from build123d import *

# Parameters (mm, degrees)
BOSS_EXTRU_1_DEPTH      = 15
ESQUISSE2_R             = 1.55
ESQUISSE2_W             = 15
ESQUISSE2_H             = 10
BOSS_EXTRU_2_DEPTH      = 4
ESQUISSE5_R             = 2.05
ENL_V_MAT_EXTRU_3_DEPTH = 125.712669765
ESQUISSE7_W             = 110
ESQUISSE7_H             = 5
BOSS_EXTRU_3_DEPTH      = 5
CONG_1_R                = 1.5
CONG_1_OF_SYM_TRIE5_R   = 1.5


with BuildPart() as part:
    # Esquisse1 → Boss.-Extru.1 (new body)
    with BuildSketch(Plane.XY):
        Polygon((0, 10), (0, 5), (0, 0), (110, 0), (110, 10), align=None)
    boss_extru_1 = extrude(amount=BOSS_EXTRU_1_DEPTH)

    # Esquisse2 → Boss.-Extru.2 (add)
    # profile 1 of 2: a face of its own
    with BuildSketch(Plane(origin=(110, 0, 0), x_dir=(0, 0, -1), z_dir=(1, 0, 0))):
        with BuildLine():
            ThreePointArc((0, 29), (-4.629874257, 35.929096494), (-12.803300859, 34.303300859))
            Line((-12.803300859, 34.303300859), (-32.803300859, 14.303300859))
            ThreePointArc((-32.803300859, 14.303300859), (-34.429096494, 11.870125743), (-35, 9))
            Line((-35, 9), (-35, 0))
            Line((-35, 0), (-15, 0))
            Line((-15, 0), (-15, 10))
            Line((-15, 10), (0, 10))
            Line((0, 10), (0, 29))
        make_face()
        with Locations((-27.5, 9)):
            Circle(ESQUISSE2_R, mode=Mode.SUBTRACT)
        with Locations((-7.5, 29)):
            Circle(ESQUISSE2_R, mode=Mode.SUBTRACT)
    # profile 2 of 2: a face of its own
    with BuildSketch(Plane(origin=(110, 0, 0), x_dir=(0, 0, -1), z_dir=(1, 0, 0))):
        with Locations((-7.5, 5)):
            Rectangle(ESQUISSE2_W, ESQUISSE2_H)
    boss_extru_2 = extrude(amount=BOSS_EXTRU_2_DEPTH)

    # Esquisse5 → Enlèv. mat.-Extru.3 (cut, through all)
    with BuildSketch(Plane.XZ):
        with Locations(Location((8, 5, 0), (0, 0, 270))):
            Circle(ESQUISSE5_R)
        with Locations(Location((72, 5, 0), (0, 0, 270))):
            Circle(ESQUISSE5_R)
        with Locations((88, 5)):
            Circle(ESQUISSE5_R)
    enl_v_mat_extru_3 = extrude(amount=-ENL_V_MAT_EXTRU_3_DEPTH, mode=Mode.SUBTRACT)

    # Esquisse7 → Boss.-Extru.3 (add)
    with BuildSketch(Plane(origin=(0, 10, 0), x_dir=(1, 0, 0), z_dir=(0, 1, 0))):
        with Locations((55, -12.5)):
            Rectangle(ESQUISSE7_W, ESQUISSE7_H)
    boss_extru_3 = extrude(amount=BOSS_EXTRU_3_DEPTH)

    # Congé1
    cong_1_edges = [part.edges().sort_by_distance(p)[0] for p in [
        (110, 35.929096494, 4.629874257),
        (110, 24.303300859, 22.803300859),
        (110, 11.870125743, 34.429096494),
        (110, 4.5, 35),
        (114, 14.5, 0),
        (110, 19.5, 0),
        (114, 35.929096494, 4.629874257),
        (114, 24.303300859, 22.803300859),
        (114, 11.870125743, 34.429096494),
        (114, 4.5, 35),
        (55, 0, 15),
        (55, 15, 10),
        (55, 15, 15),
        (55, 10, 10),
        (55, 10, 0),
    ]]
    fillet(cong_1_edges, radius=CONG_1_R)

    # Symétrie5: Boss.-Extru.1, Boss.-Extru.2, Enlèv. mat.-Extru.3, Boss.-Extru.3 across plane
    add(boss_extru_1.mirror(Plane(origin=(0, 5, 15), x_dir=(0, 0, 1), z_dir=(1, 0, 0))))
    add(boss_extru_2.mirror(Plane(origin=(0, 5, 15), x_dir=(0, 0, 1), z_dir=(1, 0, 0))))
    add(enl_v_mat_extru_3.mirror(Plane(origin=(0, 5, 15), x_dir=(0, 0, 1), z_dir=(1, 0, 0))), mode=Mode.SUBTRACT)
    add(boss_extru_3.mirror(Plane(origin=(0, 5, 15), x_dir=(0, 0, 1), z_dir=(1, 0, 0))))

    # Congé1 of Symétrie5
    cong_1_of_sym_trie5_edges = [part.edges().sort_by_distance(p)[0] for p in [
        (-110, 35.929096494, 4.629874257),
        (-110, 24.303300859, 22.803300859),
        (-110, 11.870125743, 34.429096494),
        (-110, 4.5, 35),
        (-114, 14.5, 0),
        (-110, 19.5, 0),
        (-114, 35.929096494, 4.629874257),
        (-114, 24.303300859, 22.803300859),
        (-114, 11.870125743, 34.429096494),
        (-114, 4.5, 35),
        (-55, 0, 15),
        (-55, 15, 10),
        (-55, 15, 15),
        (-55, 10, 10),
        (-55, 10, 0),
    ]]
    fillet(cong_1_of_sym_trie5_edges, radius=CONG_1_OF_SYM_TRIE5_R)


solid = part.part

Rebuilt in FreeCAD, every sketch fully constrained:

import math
import FreeCAD as App
import Part
import Sketcher

V = App.Vector


def edges_at(feature, points):
    """Names of the edges that pass closest to the given points."""
    edges = feature.Shape.Edges
    near = lambda p: min(range(len(edges)), key=lambda i: edges[i].distToShape(Part.Vertex(*p))[0])
    return sorted({f"Edge{near(p) + 1}" for p in points})

doc = App.newDocument("Part")
body = doc.addObject("PartDesign::Body", "Body")

# Sketch on XY plane
sketch1 = body.newObject("Sketcher::SketchObject", "Sketch")
sketch1.AttachmentSupport = (doc.getObject("XY_Plane"), [""])
sketch1.MapMode = "FlatFace"
sketch1.addGeometry(Part.LineSegment(V(0, 10, 0), V(0, 0, 0)), False)
sketch1.addGeometry(Part.LineSegment(V(0, 0, 0), V(110, 0, 0)), False)
sketch1.addGeometry(Part.LineSegment(V(110, 0, 0), V(110, 10, 0)), False)
sketch1.addGeometry(Part.LineSegment(V(110, 10, 0), V(0, 10, 0)), False)
sketch1.addConstraint(Sketcher.Constraint("Coincident", 0, 2, 1, 1))
sketch1.addConstraint(Sketcher.Constraint("Coincident", 1, 2, 2, 1))
sketch1.addConstraint(Sketcher.Constraint("Coincident", 2, 2, 3, 1))
sketch1.addConstraint(Sketcher.Constraint("Coincident", 3, 2, 0, 1))
sketch1.addConstraint(Sketcher.Constraint("Vertical", 0))
sketch1.addConstraint(Sketcher.Constraint("Horizontal", 1))
sketch1.addConstraint(Sketcher.Constraint("Vertical", 2))
sketch1.addConstraint(Sketcher.Constraint("Horizontal", 3))
sketch1.addConstraint(Sketcher.Constraint("Coincident", 0, 2, -1, 1))
sketch1.addConstraint(Sketcher.Constraint("DistanceX", 1, 1, 1, 2, 110.0))
sketch1.addConstraint(Sketcher.Constraint("DistanceY", 0, 2, 0, 1, 10.0))
pad1 = body.newObject("PartDesign::Pad", "Pad")
pad1.Profile = sketch1
pad1.Length = 15

# Sketch on YZ plane
sketch2 = body.newObject("Sketcher::SketchObject", "Sketch001")
sketch2.AttachmentSupport = (doc.getObject("YZ_Plane"), [""])
sketch2.MapMode = "FlatFace"
sketch2.AttachmentOffset = App.Placement(V(0, 0, 110), App.Rotation())
sketch2.addGeometry(Part.ArcOfCircle(Part.Circle(V(29, 7.5, 0), V(0, 0, 1), 7.5), math.radians(-90), math.radians(45)), False)
sketch2.addGeometry(Part.LineSegment(V(34.3, 12.8, 0), V(14.3, 32.8, 0)), False)
sketch2.addGeometry(Part.ArcOfCircle(Part.Circle(V(9, 27.5, 0), V(0, 0, 1), 7.5), math.radians(45), math.radians(90)), False)
sketch2.addGeometry(Part.LineSegment(V(9, 35, 0), V(0, 35, 0)), False)
sketch2.addGeometry(Part.LineSegment(V(0, 35, 0), V(0, 0, 0)), False)
sketch2.addGeometry(Part.LineSegment(V(0, 0, 0), V(29, 0, 0)), False)
sketch2.addGeometry(Part.Circle(V(9, 27.5, 0), V(0, 0, 1), 1.6), False)
sketch2.addGeometry(Part.Circle(V(29, 7.5, 0), V(0, 0, 1), 1.6), False)
sketch2.addConstraint(Sketcher.Constraint("Tangent", 0, 2, 1, 1))
sketch2.addConstraint(Sketcher.Constraint("Tangent", 1, 2, 2, 1))
sketch2.addConstraint(Sketcher.Constraint("Tangent", 2, 2, 3, 1))
sketch2.addConstraint(Sketcher.Constraint("Coincident", 3, 2, 4, 1))
sketch2.addConstraint(Sketcher.Constraint("Coincident", 4, 2, 5, 1))
sketch2.addConstraint(Sketcher.Constraint("Tangent", 5, 2, 0, 1))
sketch2.addConstraint(Sketcher.Constraint("Horizontal", 3))
sketch2.addConstraint(Sketcher.Constraint("Vertical", 4))
sketch2.addConstraint(Sketcher.Constraint("Horizontal", 5))
sketch2.addConstraint(Sketcher.Constraint("Coincident", 4, 2, -1, 1))
sketch2.addConstraint(Sketcher.Constraint("Coincident", 6, 3, 2, 3))
sketch2.addConstraint(Sketcher.Constraint("Coincident", 7, 3, 0, 3))
sketch2.addConstraint(Sketcher.Constraint("Equal", 0, 2))
sketch2.addConstraint(Sketcher.Constraint("Equal", 6, 7))
sketch2.addConstraint(Sketcher.Constraint("Diameter", 6, 3.1))
sketch2.addConstraint(Sketcher.Constraint("Radius", 0, 7.5))
sketch2.addConstraint(Sketcher.Constraint("DistanceX", 3, 2, 3, 1, 9.0))
sketch2.addConstraint(Sketcher.Constraint("DistanceX", 5, 1, 5, 2, 29.0))
sketch2.addConstraint(Sketcher.Constraint("DistanceY", 4, 2, 4, 1, 35.0))
pad2 = body.newObject("PartDesign::Pad", "Pad001")
pad2.Profile = sketch2
pad2.Length = 4

# Sketch on XZ plane
sketch3 = body.newObject("Sketcher::SketchObject", "Sketch002")
sketch3.AttachmentSupport = (doc.getObject("XZ_Plane"), [""])
sketch3.MapMode = "FlatFace"
sketch3.addGeometry(Part.Circle(V(8, 5, 0), V(0, 0, 1), 2), False)
sketch3.addGeometry(Part.Circle(V(72, 5, 0), V(0, 0, 1), 2), False)
sketch3.addGeometry(Part.Circle(V(88, 5, 0), V(0, 0, 1), 2), False)
sketch3.addConstraint(Sketcher.Constraint("Equal", 0, 1))
sketch3.addConstraint(Sketcher.Constraint("Equal", 1, 2))
sketch3.addConstraint(Sketcher.Constraint("Horizontal", 0, 3, 1, 3))
sketch3.addConstraint(Sketcher.Constraint("Horizontal", 1, 3, 2, 3))
sketch3.addConstraint(Sketcher.Constraint("Diameter", 0, 4.1))
sketch3.addConstraint(Sketcher.Constraint("DistanceX", -1, 1, 0, 3, 8.0))
sketch3.addConstraint(Sketcher.Constraint("DistanceY", -1, 1, 0, 3, 5.0))
sketch3.addConstraint(Sketcher.Constraint("DistanceX", -1, 1, 1, 3, 72.0))
sketch3.addConstraint(Sketcher.Constraint("DistanceX", -1, 1, 2, 3, 88.0))
pocket1 = body.newObject("PartDesign::Pocket", "Pocket")
pocket1.Profile = sketch3
pocket1.Type = "ThroughAll"

# Sketch on XZ plane
sketch4 = body.newObject("Sketcher::SketchObject", "Sketch003")
sketch4.AttachmentSupport = (doc.getObject("XZ_Plane"), [""])
sketch4.MapMode = "FlatFace"
sketch4.AttachmentOffset = App.Placement(V(0, 0, -10), App.Rotation())
sketch4.addGeometry(Part.LineSegment(V(0, 10, 0), V(0, 15, 0)), False)
sketch4.addGeometry(Part.LineSegment(V(0, 15, 0), V(110, 15, 0)), False)
sketch4.addGeometry(Part.LineSegment(V(110, 15, 0), V(110, 10, 0)), False)
sketch4.addGeometry(Part.LineSegment(V(110, 10, 0), V(0, 10, 0)), False)
sketch4.addConstraint(Sketcher.Constraint("Coincident", 0, 2, 1, 1))
sketch4.addConstraint(Sketcher.Constraint("Coincident", 1, 2, 2, 1))
sketch4.addConstraint(Sketcher.Constraint("Coincident", 2, 2, 3, 1))
sketch4.addConstraint(Sketcher.Constraint("Coincident", 3, 2, 0, 1))
sketch4.addConstraint(Sketcher.Constraint("Vertical", 0))
sketch4.addConstraint(Sketcher.Constraint("Horizontal", 1))
sketch4.addConstraint(Sketcher.Constraint("Vertical", 2))
sketch4.addConstraint(Sketcher.Constraint("Horizontal", 3))
sketch4.addConstraint(Sketcher.Constraint("PointOnObject", 0, 2, -2))
sketch4.addConstraint(Sketcher.Constraint("DistanceX", 1, 1, 1, 2, 110.0))
sketch4.addConstraint(Sketcher.Constraint("DistanceY", 0, 1, 0, 2, 5.0))
sketch4.addConstraint(Sketcher.Constraint("DistanceY", -1, 1, 0, 2, 15.0))
pad3 = body.newObject("PartDesign::Pad", "Pad002")
pad3.Profile = sketch4
pad3.Length = 5
pad3.Reversed = True
doc.recompute()

fillet = body.newObject("PartDesign::Fillet", "Fillet")
fillet.Base = (pad3, edges_at(pad3, [
    (110, 35.929, 4.63),
    (110, 24.303, 22.803),
    (110, 11.87, 34.429),
    (110, 4.5, 35),
    (114, 14.5, 0),
    (110, 19.5, 0),
    (114, 35.929, 4.63),
    (114, 24.303, 22.803),
    (114, 11.87, 34.429),
    (114, 4.5, 35),
    (55, 0, 15),
    (55, 15, 10),
    (55, 15, 15),
    (55, 10, 10),
    (55, 10, 0),
]))
fillet.Radius = 1.5
doc.recompute()

mirrored = body.newObject("PartDesign::Mirrored", "Mirrored")
mirrored.Originals = [pad1, pad2, pocket1, pad3]
mirrored.MirrorPlane = (doc.getObject("YZ_Plane"), [""])
body.Tip = mirrored
doc.recompute()

fillet2 = body.newObject("PartDesign::Fillet", "Fillet001")
fillet2.Base = (mirrored, edges_at(mirrored, [
    (-110, 35.929, 4.63),
    (-110, 24.303, 22.803),
    (-110, 11.87, 34.429),
    (-110, 4.5, 35),
    (-114, 14.5, 0),
    (-110, 19.5, 0),
    (-114, 35.929, 4.63),
    (-114, 24.303, 22.803),
    (-114, 11.87, 34.429),
    (-114, 4.5, 35),
    (-55, 0, 15),
    (-55, 15, 10),
    (-55, 15, 15),
    (-55, 10, 10),
    (-55, 10, 0),
]))
fillet2.Radius = 1.5

doc.recompute()
